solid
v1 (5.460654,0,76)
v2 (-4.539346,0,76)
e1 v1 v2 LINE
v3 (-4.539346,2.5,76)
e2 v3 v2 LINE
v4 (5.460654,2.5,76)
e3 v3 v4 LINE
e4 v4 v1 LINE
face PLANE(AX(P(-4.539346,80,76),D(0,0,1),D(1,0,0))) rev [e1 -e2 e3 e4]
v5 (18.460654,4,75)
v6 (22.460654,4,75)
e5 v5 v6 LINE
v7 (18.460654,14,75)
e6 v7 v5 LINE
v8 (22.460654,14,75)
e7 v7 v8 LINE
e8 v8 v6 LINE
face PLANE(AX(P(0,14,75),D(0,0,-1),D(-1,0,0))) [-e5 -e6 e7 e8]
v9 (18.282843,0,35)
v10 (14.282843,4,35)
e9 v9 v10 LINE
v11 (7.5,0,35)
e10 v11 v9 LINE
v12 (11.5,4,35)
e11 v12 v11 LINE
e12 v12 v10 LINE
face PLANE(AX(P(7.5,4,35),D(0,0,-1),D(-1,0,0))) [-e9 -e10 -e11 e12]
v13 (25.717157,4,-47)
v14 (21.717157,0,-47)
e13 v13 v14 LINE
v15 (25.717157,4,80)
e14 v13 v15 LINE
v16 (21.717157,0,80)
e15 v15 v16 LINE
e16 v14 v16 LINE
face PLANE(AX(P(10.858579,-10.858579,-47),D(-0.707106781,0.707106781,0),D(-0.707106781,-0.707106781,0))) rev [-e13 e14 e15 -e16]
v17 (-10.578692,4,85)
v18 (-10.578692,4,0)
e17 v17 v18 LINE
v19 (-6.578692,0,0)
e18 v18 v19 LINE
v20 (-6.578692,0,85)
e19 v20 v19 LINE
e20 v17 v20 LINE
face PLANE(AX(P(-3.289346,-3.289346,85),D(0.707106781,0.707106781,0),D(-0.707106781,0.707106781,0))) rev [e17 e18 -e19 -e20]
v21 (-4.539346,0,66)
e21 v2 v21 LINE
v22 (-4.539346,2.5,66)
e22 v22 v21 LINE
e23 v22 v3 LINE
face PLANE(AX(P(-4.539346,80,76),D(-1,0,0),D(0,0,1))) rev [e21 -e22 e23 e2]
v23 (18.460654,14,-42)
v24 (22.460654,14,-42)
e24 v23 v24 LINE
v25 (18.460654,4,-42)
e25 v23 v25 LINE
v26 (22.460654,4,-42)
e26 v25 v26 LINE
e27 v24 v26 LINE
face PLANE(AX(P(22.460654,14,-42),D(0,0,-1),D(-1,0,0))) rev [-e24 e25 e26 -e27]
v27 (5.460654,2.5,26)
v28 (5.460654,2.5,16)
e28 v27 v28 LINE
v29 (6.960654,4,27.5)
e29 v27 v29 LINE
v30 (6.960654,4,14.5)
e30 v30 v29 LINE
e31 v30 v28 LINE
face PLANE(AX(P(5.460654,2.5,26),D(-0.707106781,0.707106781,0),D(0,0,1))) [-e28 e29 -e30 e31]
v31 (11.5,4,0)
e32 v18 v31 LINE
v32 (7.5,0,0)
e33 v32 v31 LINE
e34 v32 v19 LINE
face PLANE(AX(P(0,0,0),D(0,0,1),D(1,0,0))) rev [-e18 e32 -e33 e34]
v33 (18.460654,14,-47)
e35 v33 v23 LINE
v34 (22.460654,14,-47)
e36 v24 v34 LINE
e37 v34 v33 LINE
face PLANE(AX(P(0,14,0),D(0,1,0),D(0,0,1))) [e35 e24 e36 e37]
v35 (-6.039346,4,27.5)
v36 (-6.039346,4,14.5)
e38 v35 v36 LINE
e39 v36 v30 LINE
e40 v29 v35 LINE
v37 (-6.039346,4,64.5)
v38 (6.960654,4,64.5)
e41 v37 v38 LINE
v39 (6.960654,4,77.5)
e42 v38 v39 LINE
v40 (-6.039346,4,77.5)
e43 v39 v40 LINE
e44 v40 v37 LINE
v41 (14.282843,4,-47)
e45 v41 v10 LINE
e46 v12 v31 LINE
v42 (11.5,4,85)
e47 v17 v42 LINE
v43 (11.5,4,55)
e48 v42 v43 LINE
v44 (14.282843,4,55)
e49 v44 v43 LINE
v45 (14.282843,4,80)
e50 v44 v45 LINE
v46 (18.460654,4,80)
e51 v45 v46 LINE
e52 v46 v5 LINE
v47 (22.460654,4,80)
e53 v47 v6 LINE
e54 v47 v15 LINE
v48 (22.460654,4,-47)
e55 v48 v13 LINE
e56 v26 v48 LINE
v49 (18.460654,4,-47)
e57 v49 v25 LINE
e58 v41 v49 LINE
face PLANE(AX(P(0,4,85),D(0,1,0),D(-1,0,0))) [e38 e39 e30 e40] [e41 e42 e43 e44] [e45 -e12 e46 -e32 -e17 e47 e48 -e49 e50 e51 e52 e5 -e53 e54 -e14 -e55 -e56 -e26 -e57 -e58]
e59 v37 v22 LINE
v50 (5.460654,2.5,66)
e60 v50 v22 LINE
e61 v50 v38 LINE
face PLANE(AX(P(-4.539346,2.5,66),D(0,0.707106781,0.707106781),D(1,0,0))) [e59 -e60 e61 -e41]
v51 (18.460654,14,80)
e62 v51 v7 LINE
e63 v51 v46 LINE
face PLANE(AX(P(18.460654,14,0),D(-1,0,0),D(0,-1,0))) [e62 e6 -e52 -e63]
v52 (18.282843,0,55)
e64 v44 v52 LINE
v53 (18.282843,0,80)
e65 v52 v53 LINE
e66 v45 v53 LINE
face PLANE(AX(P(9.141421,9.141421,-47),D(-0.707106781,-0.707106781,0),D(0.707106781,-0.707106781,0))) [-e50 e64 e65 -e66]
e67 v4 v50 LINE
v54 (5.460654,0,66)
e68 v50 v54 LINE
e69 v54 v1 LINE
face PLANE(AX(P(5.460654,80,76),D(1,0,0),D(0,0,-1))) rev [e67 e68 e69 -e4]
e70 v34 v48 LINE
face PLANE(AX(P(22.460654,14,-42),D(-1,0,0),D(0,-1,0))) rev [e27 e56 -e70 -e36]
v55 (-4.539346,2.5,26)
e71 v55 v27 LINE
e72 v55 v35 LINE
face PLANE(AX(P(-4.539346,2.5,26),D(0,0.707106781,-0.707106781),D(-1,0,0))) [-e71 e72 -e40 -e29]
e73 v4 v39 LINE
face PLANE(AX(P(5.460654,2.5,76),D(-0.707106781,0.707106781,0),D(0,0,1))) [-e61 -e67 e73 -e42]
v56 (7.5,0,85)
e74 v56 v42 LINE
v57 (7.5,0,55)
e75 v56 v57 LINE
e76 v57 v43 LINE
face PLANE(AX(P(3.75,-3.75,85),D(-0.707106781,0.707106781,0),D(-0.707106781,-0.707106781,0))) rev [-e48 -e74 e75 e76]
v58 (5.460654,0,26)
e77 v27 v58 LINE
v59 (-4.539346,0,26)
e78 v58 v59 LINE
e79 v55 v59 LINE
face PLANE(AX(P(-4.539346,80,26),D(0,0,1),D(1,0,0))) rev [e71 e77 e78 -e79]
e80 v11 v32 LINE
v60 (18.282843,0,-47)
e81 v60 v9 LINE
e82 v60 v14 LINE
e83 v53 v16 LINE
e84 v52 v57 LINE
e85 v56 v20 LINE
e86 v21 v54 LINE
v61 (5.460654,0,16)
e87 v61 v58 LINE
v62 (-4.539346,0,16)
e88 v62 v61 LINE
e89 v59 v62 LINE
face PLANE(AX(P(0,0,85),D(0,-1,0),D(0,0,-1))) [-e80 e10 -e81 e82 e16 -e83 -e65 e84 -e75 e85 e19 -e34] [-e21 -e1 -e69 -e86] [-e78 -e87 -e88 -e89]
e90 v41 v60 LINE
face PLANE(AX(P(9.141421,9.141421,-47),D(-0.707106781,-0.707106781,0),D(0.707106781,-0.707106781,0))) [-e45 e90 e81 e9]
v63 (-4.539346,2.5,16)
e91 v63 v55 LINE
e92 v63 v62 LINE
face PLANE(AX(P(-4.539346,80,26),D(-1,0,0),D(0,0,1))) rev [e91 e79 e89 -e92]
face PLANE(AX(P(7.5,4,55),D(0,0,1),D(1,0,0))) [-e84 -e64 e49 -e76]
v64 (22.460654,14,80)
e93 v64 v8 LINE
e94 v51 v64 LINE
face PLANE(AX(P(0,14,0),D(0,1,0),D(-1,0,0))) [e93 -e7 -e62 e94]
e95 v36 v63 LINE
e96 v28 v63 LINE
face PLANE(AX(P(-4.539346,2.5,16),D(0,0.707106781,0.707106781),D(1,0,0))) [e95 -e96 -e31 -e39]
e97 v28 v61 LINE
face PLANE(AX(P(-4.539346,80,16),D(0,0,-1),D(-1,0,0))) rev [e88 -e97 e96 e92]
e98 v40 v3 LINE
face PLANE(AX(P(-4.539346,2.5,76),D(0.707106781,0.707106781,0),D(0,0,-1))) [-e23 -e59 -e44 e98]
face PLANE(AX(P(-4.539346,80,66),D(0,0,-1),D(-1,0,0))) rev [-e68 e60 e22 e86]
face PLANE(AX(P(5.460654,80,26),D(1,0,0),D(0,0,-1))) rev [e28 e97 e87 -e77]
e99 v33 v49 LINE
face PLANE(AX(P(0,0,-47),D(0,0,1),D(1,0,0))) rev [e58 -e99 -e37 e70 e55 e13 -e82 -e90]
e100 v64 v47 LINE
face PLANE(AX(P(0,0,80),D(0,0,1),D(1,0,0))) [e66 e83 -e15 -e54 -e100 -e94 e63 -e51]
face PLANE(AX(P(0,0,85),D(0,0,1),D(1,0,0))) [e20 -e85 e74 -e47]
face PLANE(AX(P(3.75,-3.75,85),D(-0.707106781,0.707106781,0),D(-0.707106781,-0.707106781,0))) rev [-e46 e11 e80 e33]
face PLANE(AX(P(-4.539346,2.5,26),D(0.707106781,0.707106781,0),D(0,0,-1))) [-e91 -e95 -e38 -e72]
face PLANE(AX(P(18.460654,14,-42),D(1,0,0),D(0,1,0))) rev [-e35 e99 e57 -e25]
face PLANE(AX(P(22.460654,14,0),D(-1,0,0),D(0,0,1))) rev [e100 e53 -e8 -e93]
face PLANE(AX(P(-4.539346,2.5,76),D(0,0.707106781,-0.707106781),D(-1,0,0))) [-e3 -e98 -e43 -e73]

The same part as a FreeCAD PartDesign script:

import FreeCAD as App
import Part
import Sketcher
from FreeCAD import Vector
Q = App.Units.Quantity


def edges_at(feature, points):
    """Names of the edges that pass closest to the given points."""
    edges = feature.Shape.Edges
    near = lambda p: min(range(len(edges)), key=lambda i: edges[i].distToShape(Part.Vertex(*p))[0])
    return sorted({f"Edge{near(p) + 1}" for p in points})

doc = App.newDocument("Part")
body = doc.addObject("PartDesign::Body", "Body")

# Sketch on XY plane
sketch1 = body.newObject("Sketcher::SketchObject", "Sketch")
sketch1.AttachmentSupport = (doc.getObject("XY_Plane"), [""])
sketch1.MapMode = "FlatFace"
sketch1.addGeometry(Part.LineSegment(Vector(8, 0, 0), Vector(12, 4, 0)), False)
sketch1.addGeometry(Part.LineSegment(Vector(12, 4, 0), Vector(-11, 4, 0)), False)
sketch1.addGeometry(Part.LineSegment(Vector(-11, 4, 0), Vector(-7, 0, 0)), False)
sketch1.addGeometry(Part.LineSegment(Vector(-7, 0, 0), Vector(8, 0, 0)), False)
sketch1.addConstraint(Sketcher.Constraint("Coincident", 0, 2, 1, 1))
sketch1.addConstraint(Sketcher.Constraint("Coincident", 1, 2, 2, 1))
sketch1.addConstraint(Sketcher.Constraint("Coincident", 2, 2, 3, 1))
sketch1.addConstraint(Sketcher.Constraint("Coincident", 3, 2, 0, 1))
sketch1.addConstraint(Sketcher.Constraint("Horizontal", 1))
sketch1.addConstraint(Sketcher.Constraint("Horizontal", 3))
sketch1.addConstraint(Sketcher.Constraint("PointOnObject", 2, 2, -1))
sketch1.addConstraint(Sketcher.Constraint("Perpendicular", 0, 2))
sketch1.addConstraint(Sketcher.Constraint("Equal", 0, 2))
sketch1.addConstraint(Sketcher.Constraint("DistanceY", -1, 1, 0, 2, Q("4 mm")))
sketch1.addConstraint(Sketcher.Constraint("DistanceX", -1, 1, 0, 2, Q("11.5 mm")))
sketch1.addConstraint(Sketcher.Constraint("DistanceX", 1, 2, 1, 1, Q("22.078692 mm")))
pad1 = body.newObject("PartDesign::Pad", "Pad")
pad1.Profile = sketch1
pad1.Length = 85

# Sketch on XZ plane
sketch2 = body.newObject("Sketcher::SketchObject", "Sketch001")
sketch2.AttachmentSupport = (doc.getObject("XZ_Plane"), [""])
sketch2.MapMode = "FlatFace"
sketch2.addGeometry(Part.LineSegment(Vector(-5, 26, 0), Vector(-5, 16, 0)), False)
sketch2.addGeometry(Part.LineSegment(Vector(-5, 16, 0), Vector(5, 16, 0)), False)
sketch2.addGeometry(Part.LineSegment(Vector(5, 16, 0), Vector(5, 26, 0)), False)
sketch2.addGeometry(Part.LineSegment(Vector(5, 26, 0), Vector(-5, 26, 0)), False)
sketch2.addGeometry(Part.LineSegment(Vector(-5, 76, 0), Vector(-5, 66, 0)), False)
sketch2.addGeometry(Part.LineSegment(Vector(-5, 66, 0), Vector(5, 66, 0)), False)
sketch2.addGeometry(Part.LineSegment(Vector(5, 66, 0), Vector(5, 76, 0)), False)
sketch2.addGeometry(Part.LineSegment(Vector(5, 76, 0), Vector(-5, 76, 0)), False)
sketch2.addConstraint(Sketcher.Constraint("Coincident", 0, 2, 1, 1))
sketch2.addConstraint(Sketcher.Constraint("Coincident", 1, 2, 2, 1))
sketch2.addConstraint(Sketcher.Constraint("Coincident", 2, 2, 3, 1))
sketch2.addConstraint(Sketcher.Constraint("Coincident", 3, 2, 0, 1))
sketch2.addConstraint(Sketcher.Constraint("Coincident", 4, 2, 5, 1))
sketch2.addConstraint(Sketcher.Constraint("Coincident", 5, 2, 6, 1))
sketch2.addConstraint(Sketcher.Constraint("Coincident", 6, 2, 7, 1))
sketch2.addConstraint(Sketcher.Constraint("Coincident", 7, 2, 4, 1))
sketch2.addConstraint(Sketcher.Constraint("Vertical", 0))
sketch2.addConstraint(Sketcher.Constraint("Horizontal", 1))
sketch2.addConstraint(Sketcher.Constraint("Vertical", 2))
sketch2.addConstraint(Sketcher.Constraint("Horizontal", 3))
sketch2.addConstraint(Sketcher.Constraint("Vertical", 4))
sketch2.addConstraint(Sketcher.Constraint("Horizontal", 5))
sketch2.addConstraint(Sketcher.Constraint("Vertical", 6))
sketch2.addConstraint(Sketcher.Constraint("Horizontal", 7))
sketch2.addConstraint(Sketcher.Constraint("Vertical", 3, 2, 4, 2))
sketch2.addConstraint(Sketcher.Constraint("Vertical", 2, 2, 5, 2))
sketch2.addConstraint(Sketcher.Constraint("Equal", 7, 0))
sketch2.addConstraint(Sketcher.Constraint("Equal", 2, 4))
sketch2.addConstraint(Sketcher.Constraint("DistanceX", 1, 1, 1, 2, Q("10 mm")))
sketch2.addConstraint(Sketcher.Constraint("DistanceY", -1, 1, 0, 2, Q("16 mm")))
sketch2.addConstraint(Sketcher.Constraint("DistanceY", -1, 1, 4, 2, Q("66 mm")))
sketch2.addConstraint(Sketcher.Constraint("DistanceX", 0, 2, -1, 1, Q("4.539346 mm")))
pocket1 = body.newObject("PartDesign::Pocket", "Pocket")
pocket1.Profile = sketch2
pocket1.Length = 80
body2 = doc.addObject("PartDesign::Body", "Body001")

# Sketch on XY plane
sketch3 = body2.newObject("Sketcher::SketchObject", "Sketch002")
sketch3.AttachmentSupport = (doc.getObject("XY_Plane001"), [""])
sketch3.MapMode = "FlatFace"
sketch3.addGeometry(Part.LineSegment(Vector(14.3, 4, 0), Vector(18.3, 0, 0)), False)
sketch3.addGeometry(Part.LineSegment(Vector(18.3, 0, 0), Vector(21.7, 0, 0)), False)
sketch3.addGeometry(Part.LineSegment(Vector(21.7, 0, 0), Vector(25.7, 4, 0)), False)
sketch3.addGeometry(Part.LineSegment(Vector(25.7, 4, 0), Vector(14.3, 4, 0)), False)
sketch3.addConstraint(Sketcher.Constraint("Coincident", 0, 2, 1, 1))
sketch3.addConstraint(Sketcher.Constraint("Coincident", 1, 2, 2, 1))
sketch3.addConstraint(Sketcher.Constraint("Coincident", 2, 2, 3, 1))
sketch3.addConstraint(Sketcher.Constraint("Coincident", 3, 2, 0, 1))
sketch3.addConstraint(Sketcher.Constraint("Horizontal", 1))
sketch3.addConstraint(Sketcher.Constraint("Horizontal", 3))
sketch3.addConstraint(Sketcher.Constraint("PointOnObject", 0, 2, -1))
sketch3.addConstraint(Sketcher.Constraint("Perpendicular", 0, 2))
sketch3.addConstraint(Sketcher.Constraint("Equal", 0, 2))
sketch3.addConstraint(Sketcher.Constraint("DistanceY", -1, 1, 2, 2, Q("4 mm")))
sketch3.addConstraint(Sketcher.Constraint("DistanceX", 1, 1, 1, 2, Q("3.434315 mm")))
sketch3.addConstraint(Sketcher.Constraint("DistanceX", -1, 1, 0, 2, Q("18.282843 mm")))
pad2 = body2.newObject("PartDesign::Pad", "Pad001")
pad2.Profile = sketch3
pad2.Type = "TwoLengths"
pad2.Length = 80
pad2.Length2 = 47
body.AllowCompound = True
doc.recompute()

boolean = body.newObject("PartDesign::Boolean", "Boolean")
boolean.Type = "Fuse"
boolean.addObjects([body2])

# Sketch on XZ plane
sketch4 = body.newObject("Sketcher::SketchObject", "Sketch003")
sketch4.AttachmentSupport = (doc.getObject("XZ_Plane"), [""])
sketch4.MapMode = "FlatFace"
sketch4.addGeometry(Part.LineSegment(Vector(8, 55, 0), Vector(8, 35, 0)), False)
sketch4.addGeometry(Part.LineSegment(Vector(8, 35, 0), Vector(18, 35, 0)), False)
sketch4.addGeometry(Part.LineSegment(Vector(18, 35, 0), Vector(18, 55, 0)), False)
sketch4.addGeometry(Part.LineSegment(Vector(18, 55, 0), Vector(8, 55, 0)), False)
sketch4.addConstraint(Sketcher.Constraint("Coincident", 0, 2, 1, 1))
sketch4.addConstraint(Sketcher.Constraint("Coincident", 1, 2, 2, 1))
sketch4.addConstraint(Sketcher.Constraint("Coincident", 2, 2, 3, 1))
sketch4.addConstraint(Sketcher.Constraint("Coincident", 3, 2, 0, 1))
sketch4.addConstraint(Sketcher.Constraint("Vertical", 0))
sketch4.addConstraint(Sketcher.Constraint("Horizontal", 1))
sketch4.addConstraint(Sketcher.Constraint("Vertical", 2))
sketch4.addConstraint(Sketcher.Constraint("Horizontal", 3))
sketch4.addConstraint(Sketcher.Constraint("DistanceY", 0, 2, 0, 1, Q("20 mm")))
sketch4.addConstraint(Sketcher.Constraint("DistanceY", -1, 1, 0, 2, Q("35 mm")))
sketch4.addConstraint(Sketcher.Constraint("DistanceX", -1, 1, 0, 2, Q("7.5 mm")))
sketch4.addConstraint(Sketcher.Constraint("DistanceX", 1, 1, 1, 2, Q("10.782843 mm")))
pad3 = body.newObject("PartDesign::Pad", "Pad002")
pad3.Profile = sketch4
pad3.Length = 4
pad3.Reversed = True

# Sketch on XZ plane
sketch5 = body.newObject("Sketcher::SketchObject", "Sketch004")
sketch5.AttachmentSupport = (doc.getObject("XZ_Plane"), [""])
sketch5.MapMode = "FlatFace"
sketch5.AttachmentOffset = App.Placement(Vector(0, 0, -4), App.Rotation())
sketch5.addGeometry(Part.LineSegment(Vector(18.5, 75, 0), Vector(18.5, 80, 0)), False)
sketch5.addGeometry(Part.LineSegment(Vector(18.5, 80, 0), Vector(22.5, 80, 0)), False)
sketch5.addGeometry(Part.LineSegment(Vector(22.5, 80, 0), Vector(22.5, 75, 0)), False)
sketch5.addGeometry(Part.LineSegment(Vector(22.5, 75, 0), Vector(18.5, 75, 0)), False)
sketch5.addConstraint(Sketcher.Constraint("Coincident", 0, 2, 1, 1))
sketch5.addConstraint(Sketcher.Constraint("Coincident", 1, 2, 2, 1))
sketch5.addConstraint(Sketcher.Constraint("Coincident", 2, 2, 3, 1))
sketch5.addConstraint(Sketcher.Constraint("Coincident", 3, 2, 0, 1))
sketch5.addConstraint(Sketcher.Constraint("Vertical", 0))
sketch5.addConstraint(Sketcher.Constraint("Horizontal", 1))
sketch5.addConstraint(Sketcher.Constraint("Vertical", 2))
sketch5.addConstraint(Sketcher.Constraint("Horizontal", 3))
sketch5.addConstraint(Sketcher.Constraint("DistanceX", 1, 1, 1, 2, Q("4 mm")))
sketch5.addConstraint(Sketcher.Constraint("DistanceY", 0, 1, 0, 2, Q("5 mm")))
sketch5.addConstraint(Sketcher.Constraint("DistanceY", -1, 1, 0, 2, Q("80 mm")))
sketch5.addConstraint(Sketcher.Constraint("DistanceX", -1, 1, 0, 2, Q("18.460654 mm")))
pad4 = body.newObject("PartDesign::Pad", "Pad003")
pad4.Profile = sketch5
pad4.Length = 10
pad4.Reversed = True

# Sketch on XZ plane
sketch6 = body.newObject("Sketcher::SketchObject", "Sketch005")
sketch6.AttachmentSupport = (doc.getObject("XZ_Plane"), [""])
sketch6.MapMode = "FlatFace"
sketch6.AttachmentOffset = App.Placement(Vector(0, 0, -4), App.Rotation())
sketch6.addGeometry(Part.LineSegment(Vector(18.5, -47, 0), Vector(18.5, -42, 0)), False)
sketch6.addGeometry(Part.LineSegment(Vector(18.5, -42, 0), Vector(22.5, -42, 0)), False)
sketch6.addGeometry(Part.LineSegment(Vector(22.5, -42, 0), Vector(22.5, -47, 0)), False)
sketch6.addGeometry(Part.LineSegment(Vector(22.5, -47, 0), Vector(18.5, -47, 0)), False)
sketch6.addConstraint(Sketcher.Constraint("Coincident", 0, 2, 1, 1))
sketch6.addConstraint(Sketcher.Constraint("Coincident", 1, 2, 2, 1))
sketch6.addConstraint(Sketcher.Constraint("Coincident", 2, 2, 3, 1))
sketch6.addConstraint(Sketcher.Constraint("Coincident", 3, 2, 0, 1))
sketch6.addConstraint(Sketcher.Constraint("Vertical", 0))
sketch6.addConstraint(Sketcher.Constraint("Horizontal", 1))
sketch6.addConstraint(Sketcher.Constraint("Vertical", 2))
sketch6.addConstraint(Sketcher.Constraint("Horizontal", 3))
sketch6.addConstraint(Sketcher.Constraint("DistanceX", 1, 1, 1, 2, Q("4 mm")))
sketch6.addConstraint(Sketcher.Constraint("DistanceY", 0, 1, 0, 2, Q("5 mm")))
sketch6.addConstraint(Sketcher.Constraint("DistanceY", 0, 2, -1, 1, Q("42 mm")))
sketch6.addConstraint(Sketcher.Constraint("DistanceX", -1, 1, 0, 2, Q("18.460654 mm")))
pad5 = body.newObject("PartDesign::Pad", "Pad004")
pad5.Profile = sketch6
pad5.Length = 10
pad5.Reversed = True
doc.recompute()

chamfer = body.newObject("PartDesign::Chamfer", "Chamfer")
chamfer.Base = (pad5, edges_at(pad5, [
    (0.461, 4, 76),
    (-4.539, 4, 71),
    (0.461, 4, 66),
    (5.461, 4, 71),
    (0.461, 4, 26),
    (-4.539, 4, 21),
    (0.461, 4, 16),
    (5.461, 4, 21),
]))
chamfer.Size = 1.5

doc.recompute()
